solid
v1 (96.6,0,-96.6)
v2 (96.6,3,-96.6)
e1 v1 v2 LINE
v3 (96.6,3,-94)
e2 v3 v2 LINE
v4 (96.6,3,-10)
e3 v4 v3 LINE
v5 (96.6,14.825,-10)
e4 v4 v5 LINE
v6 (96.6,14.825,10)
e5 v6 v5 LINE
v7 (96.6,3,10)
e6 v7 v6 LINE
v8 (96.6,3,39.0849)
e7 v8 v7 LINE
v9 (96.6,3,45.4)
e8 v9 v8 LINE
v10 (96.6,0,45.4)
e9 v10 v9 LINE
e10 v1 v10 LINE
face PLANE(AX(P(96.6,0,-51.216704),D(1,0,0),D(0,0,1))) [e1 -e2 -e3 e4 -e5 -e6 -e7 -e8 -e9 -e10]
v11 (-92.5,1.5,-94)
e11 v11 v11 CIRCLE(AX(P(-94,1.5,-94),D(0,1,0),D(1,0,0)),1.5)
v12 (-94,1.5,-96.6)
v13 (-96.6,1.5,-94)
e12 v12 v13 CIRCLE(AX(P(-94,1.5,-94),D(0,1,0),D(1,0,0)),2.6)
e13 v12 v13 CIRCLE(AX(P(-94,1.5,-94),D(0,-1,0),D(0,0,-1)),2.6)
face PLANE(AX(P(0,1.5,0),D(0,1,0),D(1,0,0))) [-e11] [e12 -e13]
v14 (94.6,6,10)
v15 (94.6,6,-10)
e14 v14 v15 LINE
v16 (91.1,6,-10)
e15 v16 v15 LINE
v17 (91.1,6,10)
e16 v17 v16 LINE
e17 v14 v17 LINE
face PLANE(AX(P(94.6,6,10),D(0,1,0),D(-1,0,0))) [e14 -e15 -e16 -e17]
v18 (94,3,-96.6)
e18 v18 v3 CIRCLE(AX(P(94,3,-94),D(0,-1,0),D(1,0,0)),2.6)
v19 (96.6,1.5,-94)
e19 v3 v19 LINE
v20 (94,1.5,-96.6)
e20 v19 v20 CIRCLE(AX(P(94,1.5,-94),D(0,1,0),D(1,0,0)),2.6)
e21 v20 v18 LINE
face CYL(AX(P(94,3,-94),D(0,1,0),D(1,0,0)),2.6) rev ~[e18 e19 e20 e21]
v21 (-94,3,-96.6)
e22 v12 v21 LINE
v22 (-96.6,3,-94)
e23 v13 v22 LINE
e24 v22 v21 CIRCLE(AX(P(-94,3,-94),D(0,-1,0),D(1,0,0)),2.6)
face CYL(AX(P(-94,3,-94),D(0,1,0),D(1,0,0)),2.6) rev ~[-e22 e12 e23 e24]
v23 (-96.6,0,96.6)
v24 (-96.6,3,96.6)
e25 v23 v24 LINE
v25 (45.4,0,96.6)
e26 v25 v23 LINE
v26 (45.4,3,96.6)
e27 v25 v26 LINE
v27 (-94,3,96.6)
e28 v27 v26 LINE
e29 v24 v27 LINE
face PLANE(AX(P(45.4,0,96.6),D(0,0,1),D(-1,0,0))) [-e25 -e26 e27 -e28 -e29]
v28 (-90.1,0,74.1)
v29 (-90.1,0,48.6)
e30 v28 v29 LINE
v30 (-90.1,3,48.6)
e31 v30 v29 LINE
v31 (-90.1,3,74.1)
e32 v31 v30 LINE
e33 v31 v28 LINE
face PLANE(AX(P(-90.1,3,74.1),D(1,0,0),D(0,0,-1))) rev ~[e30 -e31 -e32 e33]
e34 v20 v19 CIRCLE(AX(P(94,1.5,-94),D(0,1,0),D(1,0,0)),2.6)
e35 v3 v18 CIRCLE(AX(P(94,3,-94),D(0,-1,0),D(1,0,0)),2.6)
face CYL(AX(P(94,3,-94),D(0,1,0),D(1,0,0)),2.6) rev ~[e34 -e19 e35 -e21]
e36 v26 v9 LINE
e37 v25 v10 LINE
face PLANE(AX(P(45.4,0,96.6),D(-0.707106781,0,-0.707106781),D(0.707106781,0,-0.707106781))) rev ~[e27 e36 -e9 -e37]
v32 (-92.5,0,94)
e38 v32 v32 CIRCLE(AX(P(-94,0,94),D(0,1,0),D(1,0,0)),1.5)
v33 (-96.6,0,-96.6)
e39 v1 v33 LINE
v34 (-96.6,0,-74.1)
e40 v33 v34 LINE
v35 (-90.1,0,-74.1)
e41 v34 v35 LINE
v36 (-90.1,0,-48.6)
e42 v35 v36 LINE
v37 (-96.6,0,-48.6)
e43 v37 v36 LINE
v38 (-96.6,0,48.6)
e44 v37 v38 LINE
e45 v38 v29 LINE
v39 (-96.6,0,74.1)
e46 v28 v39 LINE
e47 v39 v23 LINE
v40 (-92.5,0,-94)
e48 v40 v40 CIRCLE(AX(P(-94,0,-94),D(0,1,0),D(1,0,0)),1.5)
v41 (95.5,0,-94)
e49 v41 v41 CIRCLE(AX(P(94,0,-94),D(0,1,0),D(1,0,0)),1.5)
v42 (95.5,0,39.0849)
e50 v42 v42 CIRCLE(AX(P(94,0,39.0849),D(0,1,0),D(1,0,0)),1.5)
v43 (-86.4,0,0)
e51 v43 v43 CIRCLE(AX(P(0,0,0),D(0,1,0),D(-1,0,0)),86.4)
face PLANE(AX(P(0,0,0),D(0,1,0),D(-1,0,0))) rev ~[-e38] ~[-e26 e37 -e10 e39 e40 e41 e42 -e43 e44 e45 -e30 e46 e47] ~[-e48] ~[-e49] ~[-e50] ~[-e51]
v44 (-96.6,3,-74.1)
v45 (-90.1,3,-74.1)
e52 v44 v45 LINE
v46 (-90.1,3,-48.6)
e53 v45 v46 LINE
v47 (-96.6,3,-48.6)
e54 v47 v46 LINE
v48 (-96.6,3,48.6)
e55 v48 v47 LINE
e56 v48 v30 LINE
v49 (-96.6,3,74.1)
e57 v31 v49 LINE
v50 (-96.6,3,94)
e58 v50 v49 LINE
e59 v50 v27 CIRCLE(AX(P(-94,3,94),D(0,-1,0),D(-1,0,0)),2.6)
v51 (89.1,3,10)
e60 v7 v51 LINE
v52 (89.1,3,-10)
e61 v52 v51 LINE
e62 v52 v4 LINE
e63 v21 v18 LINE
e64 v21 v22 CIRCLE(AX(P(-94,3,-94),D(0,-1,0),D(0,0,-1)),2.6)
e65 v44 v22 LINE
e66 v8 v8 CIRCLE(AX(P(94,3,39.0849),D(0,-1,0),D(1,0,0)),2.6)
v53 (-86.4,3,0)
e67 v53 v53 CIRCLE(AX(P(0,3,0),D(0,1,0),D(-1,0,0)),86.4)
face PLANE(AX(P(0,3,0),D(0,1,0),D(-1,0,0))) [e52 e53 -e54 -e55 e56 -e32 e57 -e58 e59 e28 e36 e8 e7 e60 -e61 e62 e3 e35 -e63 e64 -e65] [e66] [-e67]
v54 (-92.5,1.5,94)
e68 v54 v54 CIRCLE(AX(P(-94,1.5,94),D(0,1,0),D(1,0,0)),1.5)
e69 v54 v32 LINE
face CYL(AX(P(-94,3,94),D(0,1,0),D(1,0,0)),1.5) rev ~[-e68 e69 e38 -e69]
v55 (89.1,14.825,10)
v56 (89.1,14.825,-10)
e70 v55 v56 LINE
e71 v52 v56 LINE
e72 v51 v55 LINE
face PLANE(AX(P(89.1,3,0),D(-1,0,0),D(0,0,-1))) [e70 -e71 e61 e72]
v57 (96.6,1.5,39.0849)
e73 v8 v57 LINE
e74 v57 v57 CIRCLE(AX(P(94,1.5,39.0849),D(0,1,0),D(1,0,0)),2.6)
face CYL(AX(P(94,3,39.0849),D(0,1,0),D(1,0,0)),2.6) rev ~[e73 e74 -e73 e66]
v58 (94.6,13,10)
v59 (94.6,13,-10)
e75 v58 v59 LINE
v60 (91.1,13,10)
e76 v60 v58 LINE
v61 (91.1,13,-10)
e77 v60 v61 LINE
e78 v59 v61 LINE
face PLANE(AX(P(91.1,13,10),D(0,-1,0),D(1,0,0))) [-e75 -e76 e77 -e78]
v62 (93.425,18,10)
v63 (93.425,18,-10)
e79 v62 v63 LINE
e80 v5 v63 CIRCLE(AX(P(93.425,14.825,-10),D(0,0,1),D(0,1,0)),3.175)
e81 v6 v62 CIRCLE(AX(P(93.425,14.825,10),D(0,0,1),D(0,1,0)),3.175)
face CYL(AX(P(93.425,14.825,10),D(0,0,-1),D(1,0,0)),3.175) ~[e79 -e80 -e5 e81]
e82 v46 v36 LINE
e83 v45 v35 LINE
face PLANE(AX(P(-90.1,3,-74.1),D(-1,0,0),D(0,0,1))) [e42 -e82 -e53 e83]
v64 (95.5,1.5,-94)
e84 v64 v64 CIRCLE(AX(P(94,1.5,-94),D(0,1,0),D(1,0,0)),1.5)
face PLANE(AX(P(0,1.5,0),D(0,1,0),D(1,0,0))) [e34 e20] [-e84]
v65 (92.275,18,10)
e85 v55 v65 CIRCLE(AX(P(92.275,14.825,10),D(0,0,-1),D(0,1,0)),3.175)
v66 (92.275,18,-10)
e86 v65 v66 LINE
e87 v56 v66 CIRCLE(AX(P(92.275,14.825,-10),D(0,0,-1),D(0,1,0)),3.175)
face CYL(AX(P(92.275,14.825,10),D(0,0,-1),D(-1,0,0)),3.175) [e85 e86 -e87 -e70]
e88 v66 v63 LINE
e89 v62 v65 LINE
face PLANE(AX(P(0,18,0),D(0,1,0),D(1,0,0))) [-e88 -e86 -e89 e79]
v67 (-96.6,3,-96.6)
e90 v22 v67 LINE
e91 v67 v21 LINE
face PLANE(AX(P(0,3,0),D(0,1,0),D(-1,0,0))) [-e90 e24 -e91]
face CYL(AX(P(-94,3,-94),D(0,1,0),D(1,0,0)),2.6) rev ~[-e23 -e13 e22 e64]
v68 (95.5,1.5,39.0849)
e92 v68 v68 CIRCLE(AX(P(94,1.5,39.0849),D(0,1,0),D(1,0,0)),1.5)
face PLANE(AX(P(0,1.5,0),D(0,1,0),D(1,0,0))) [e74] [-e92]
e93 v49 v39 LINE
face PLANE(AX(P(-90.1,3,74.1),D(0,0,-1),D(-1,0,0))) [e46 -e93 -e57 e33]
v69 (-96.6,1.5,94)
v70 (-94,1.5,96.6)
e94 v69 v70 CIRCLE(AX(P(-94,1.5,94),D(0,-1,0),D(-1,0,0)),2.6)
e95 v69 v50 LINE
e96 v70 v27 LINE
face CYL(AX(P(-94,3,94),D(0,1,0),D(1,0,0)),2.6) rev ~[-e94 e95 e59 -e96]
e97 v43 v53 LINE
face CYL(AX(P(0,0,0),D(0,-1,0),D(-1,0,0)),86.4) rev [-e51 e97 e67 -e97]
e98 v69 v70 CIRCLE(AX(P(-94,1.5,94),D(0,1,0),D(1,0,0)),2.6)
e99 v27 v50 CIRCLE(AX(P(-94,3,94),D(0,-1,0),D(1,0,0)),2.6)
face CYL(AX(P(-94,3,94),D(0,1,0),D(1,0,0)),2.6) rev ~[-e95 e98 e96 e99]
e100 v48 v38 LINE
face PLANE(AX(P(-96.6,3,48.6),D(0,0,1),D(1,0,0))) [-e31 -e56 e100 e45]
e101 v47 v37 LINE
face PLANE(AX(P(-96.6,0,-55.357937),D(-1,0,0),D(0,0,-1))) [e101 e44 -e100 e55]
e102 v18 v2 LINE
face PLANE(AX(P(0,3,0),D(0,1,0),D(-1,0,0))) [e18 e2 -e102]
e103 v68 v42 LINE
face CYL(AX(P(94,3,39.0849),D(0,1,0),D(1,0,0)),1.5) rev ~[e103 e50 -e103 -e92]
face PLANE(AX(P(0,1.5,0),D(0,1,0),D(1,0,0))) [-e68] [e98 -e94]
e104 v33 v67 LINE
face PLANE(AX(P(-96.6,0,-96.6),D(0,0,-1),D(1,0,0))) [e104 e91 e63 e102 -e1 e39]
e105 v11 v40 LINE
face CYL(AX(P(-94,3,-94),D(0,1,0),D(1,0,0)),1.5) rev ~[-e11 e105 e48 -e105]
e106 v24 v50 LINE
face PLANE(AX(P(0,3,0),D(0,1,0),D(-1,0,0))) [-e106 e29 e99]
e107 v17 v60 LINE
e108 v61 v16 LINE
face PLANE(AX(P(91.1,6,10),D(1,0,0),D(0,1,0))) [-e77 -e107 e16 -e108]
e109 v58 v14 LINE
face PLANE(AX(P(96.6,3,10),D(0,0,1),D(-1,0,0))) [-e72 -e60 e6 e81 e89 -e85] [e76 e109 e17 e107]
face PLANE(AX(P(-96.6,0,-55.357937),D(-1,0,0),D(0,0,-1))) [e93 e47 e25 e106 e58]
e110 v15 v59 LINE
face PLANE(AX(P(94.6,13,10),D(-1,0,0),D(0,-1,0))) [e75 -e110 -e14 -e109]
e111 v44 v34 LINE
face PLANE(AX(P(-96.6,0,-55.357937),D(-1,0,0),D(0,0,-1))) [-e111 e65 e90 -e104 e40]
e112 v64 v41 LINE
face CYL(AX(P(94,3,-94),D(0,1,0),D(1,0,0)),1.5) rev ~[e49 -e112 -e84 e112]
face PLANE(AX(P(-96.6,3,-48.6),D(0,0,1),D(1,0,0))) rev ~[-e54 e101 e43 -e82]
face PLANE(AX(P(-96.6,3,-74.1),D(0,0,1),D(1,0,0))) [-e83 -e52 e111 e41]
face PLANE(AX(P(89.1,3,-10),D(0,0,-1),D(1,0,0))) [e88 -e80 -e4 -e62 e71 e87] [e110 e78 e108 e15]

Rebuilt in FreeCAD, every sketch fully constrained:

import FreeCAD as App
import Part
import Sketcher
from FreeCAD import Vector


def edges_at(feature, points):
    """Names of the edges that pass closest to the given points."""
    edges = feature.Shape.Edges
    near = lambda p: min(range(len(edges)), key=lambda i: edges[i].distToShape(Part.Vertex(*p))[0])
    return sorted({f"Edge{near(p) + 1}" for p in points})


def add_polygon(sketch, points):
    """Adds a closed chain of lines whose ends are joined by coincident constraints."""
    first, n = sketch.GeometryCount, len(points)
    for a, b in zip(points, points[1:] + points[:1]):
        sketch.addGeometry(Part.LineSegment(App.Vector(*a, 0), App.Vector(*b, 0)), False)
    for i in range(n):
        sketch.addConstraint(Sketcher.Constraint("Coincident", first + i, 2, first + (i + 1) % n, 1))

doc = App.newDocument("Part")
body = doc.addObject("PartDesign::Body", "Body")

# Sketch on XZ plane
sketch1 = body.newObject("Sketcher::SketchObject", "Sketch")
sketch1.AttachmentSupport = (doc.getObject("XZ_Plane"), [""])
sketch1.MapMode = "FlatFace"
add_polygon(sketch1, [(-97, -97), (-97, 97), (45, 97), (97, 45), (97, -97)])  # lines 0-4
sketch1.addGeometry(Part.Circle(Vector(0, 0, 0), Vector(0, 0, 1), 86), False)  # 5
sketch1.addConstraint(Sketcher.Constraint("Vertical", 0))
sketch1.addConstraint(Sketcher.Constraint("Horizontal", 1))
sketch1.addConstraint(Sketcher.Constraint("Vertical", 3))
sketch1.addConstraint(Sketcher.Constraint("Horizontal", 4))
sketch1.addConstraint(Sketcher.Constraint("Coincident", 5, 3, -1, 1))
sketch1.addConstraint(Sketcher.Constraint("Symmetric", 0, 2, 3, 2, -1, 1))
sketch1.addConstraint(Sketcher.Constraint("Equal", 4, 0))
sketch1.addConstraint(Sketcher.Constraint("Equal", 1, 3))
sketch1.addConstraint(Sketcher.Constraint("Diameter", 5, 172.8))
sketch1.addConstraint(Sketcher.Constraint("DistanceX", 1, 1, 1, 2, 142.0))
sketch1.addConstraint(Sketcher.Constraint("DistanceX", 4, 2, 4, 1, 193.2))
pad1 = body.newObject("PartDesign::Pad", "Pad")
pad1.Profile = sketch1
pad1.Length = 3
pad1.Reversed = True

# Sketch on XZ plane
sketch2 = body.newObject("Sketcher::SketchObject", "Sketch001")
sketch2.AttachmentSupport = (doc.getObject("XZ_Plane"), [""])
sketch2.MapMode = "FlatFace"
sketch2.AttachmentOffset = App.Placement(Vector(0, 0, -3), App.Rotation())
add_polygon(sketch2, [(89, -10), (89, 10), (97, 10), (97, -10)])  # lines 0-3
sketch2.addConstraint(Sketcher.Constraint("Vertical", 0))
sketch2.addConstraint(Sketcher.Constraint("Horizontal", 1))
sketch2.addConstraint(Sketcher.Constraint("Vertical", 2))
sketch2.addConstraint(Sketcher.Constraint("Horizontal", 3))
sketch2.addConstraint(Sketcher.Constraint("DistanceX", 1, 1, 1, 2, 7.5))
sketch2.addConstraint(Sketcher.Constraint("DistanceY", -1, 1, 0, 2, 10.0))
sketch2.addConstraint(Sketcher.Constraint("DistanceY", 2, 2, -1, 1, 10.0))
sketch2.addConstraint(Sketcher.Constraint("DistanceX", -1, 1, 0, 2, 89.1))
pad2 = body.newObject("PartDesign::Pad", "Pad001")
pad2.Profile = sketch2
pad2.Length = 15
pad2.Reversed = True

# Sketch on XY plane
sketch3 = body.newObject("Sketcher::SketchObject", "Sketch002")
sketch3.AttachmentSupport = (doc.getObject("XY_Plane"), [""])
sketch3.MapMode = "FlatFace"
sketch3.AttachmentOffset = App.Placement(Vector(0, 0, 10), App.Rotation())
add_polygon(sketch3, [(94.6, 13), (91.1, 13), (91.1, 6), (94.6, 6)])  # lines 0-3
sketch3.addConstraint(Sketcher.Constraint("Horizontal", 0))
sketch3.addConstraint(Sketcher.Constraint("Vertical", 1))
sketch3.addConstraint(Sketcher.Constraint("Horizontal", 2))
sketch3.addConstraint(Sketcher.Constraint("Vertical", 3))
sketch3.addConstraint(Sketcher.Constraint("DistanceY", 1, 2, 1, 1, 7.0))
sketch3.addConstraint(Sketcher.Constraint("DistanceX", 0, 2, 0, 1, 3.5))
sketch3.addConstraint(Sketcher.Constraint("DistanceY", -1, 1, 0, 2, 13.0))
sketch3.addConstraint(Sketcher.Constraint("DistanceX", -1, 1, 0, 2, 91.1))
pocket1 = body.newObject("PartDesign::Pocket", "Pocket")
pocket1.Profile = sketch3
pocket1.Type = "ThroughAll"
doc.recompute()

fillet = body.newObject("PartDesign::Fillet", "Fillet")
fillet.Base = (pocket1, edges_at(pocket1, [(96.6, 18, 0), (89.1, 18, 0)]))
fillet.Radius = 3.175

# Sketch on XZ plane
sketch4 = body.newObject("Sketcher::SketchObject", "Sketch003")
sketch4.AttachmentSupport = (doc.getObject("XZ_Plane"), [""])
sketch4.MapMode = "FlatFace"
sketch4.AttachmentOffset = App.Placement(Vector(0, 0, -3), App.Rotation())
add_polygon(sketch4, [(-90, -74), (-97, -74), (-97, -49), (-90, -49)])  # lines 0-3
add_polygon(sketch4, [(-90, 49), (-97, 49), (-97, 74), (-90, 74)])  # lines 4-7
sketch4.addConstraint(Sketcher.Constraint("Horizontal", 0))
sketch4.addConstraint(Sketcher.Constraint("Vertical", 1))
sketch4.addConstraint(Sketcher.Constraint("Horizontal", 2))
sketch4.addConstraint(Sketcher.Constraint("Vertical", 3))
sketch4.addConstraint(Sketcher.Constraint("Horizontal", 4))
sketch4.addConstraint(Sketcher.Constraint("Vertical", 5))
sketch4.addConstraint(Sketcher.Constraint("Horizontal", 6))
sketch4.addConstraint(Sketcher.Constraint("Vertical", 7))
sketch4.addConstraint(Sketcher.Constraint("Symmetric", 1, 2, 4, 2, -1))
sketch4.addConstraint(Sketcher.Constraint("Symmetric", 3, 2, 6, 2, -1))
sketch4.addConstraint(Sketcher.Constraint("DistanceX", 0, 2, 0, 1, 6.5))
sketch4.addConstraint(Sketcher.Constraint("DistanceY", 1, 1, 1, 2, 25.5))
sketch4.addConstraint(Sketcher.Constraint("DistanceX", 0, 2, -1, 1, 96.6))
sketch4.addConstraint(Sketcher.Constraint("DistanceY", 0, 2, -1, 1, 74.1))
pocket2 = body.newObject("PartDesign::Pocket", "Pocket001")
pocket2.Profile = sketch4
pocket2.Type = "ThroughAll"
pocket2.Reversed = True

# Sketch on XZ plane
sketch5 = body.newObject("Sketcher::SketchObject", "Sketch004")
sketch5.AttachmentSupport = (doc.getObject("XZ_Plane"), [""])
sketch5.MapMode = "FlatFace"
sketch5.AttachmentOffset = App.Placement(Vector(0, 0, -3), App.Rotation())
sketch5.addGeometry(Part.Circle(Vector(-94, -94, 0), Vector(0, 0, 1), 1.5), False)
sketch5.addGeometry(Part.Circle(Vector(94, -94, 0), Vector(0, 0, 1), 1.5), False)
sketch5.addGeometry(Part.Circle(Vector(-94, 94, 0), Vector(0, 0, 1), 1.5), False)
sketch5.addGeometry(Part.Circle(Vector(94, 39.1, 0), Vector(0, 0, 1), 1.5), False)
sketch5.addConstraint(Sketcher.Constraint("Equal", 0, 1))
sketch5.addConstraint(Sketcher.Constraint("Equal", 1, 2))
sketch5.addConstraint(Sketcher.Constraint("Equal", 2, 3))
sketch5.addConstraint(Sketcher.Constraint("Symmetric", 1, 3, 2, 3, -1, 1))
sketch5.addConstraint(Sketcher.Constraint("Symmetric", 0, 3, 1, 3, -2))
sketch5.addConstraint(Sketcher.Constraint("Vertical", 1, 3, 3, 3))
sketch5.addConstraint(Sketcher.Constraint("Diameter", 0, 3.0))
sketch5.addConstraint(Sketcher.Constraint("DistanceX", 0, 3, -1, 1, 94.0))
sketch5.addConstraint(Sketcher.Constraint("DistanceY", 0, 3, -1, 1, 94.0))
sketch5.addConstraint(Sketcher.Constraint("DistanceY", -1, 1, 3, 3, 39.085))
pocket3 = body.newObject("PartDesign::Pocket", "Pocket002")
pocket3.Profile = sketch5
pocket3.Length = 10
pocket3.Reversed = True

# Sketch on XZ plane
sketch6 = body.newObject("Sketcher::SketchObject", "Sketch005")
sketch6.AttachmentSupport = (doc.getObject("XZ_Plane"), [""])
sketch6.MapMode = "FlatFace"
sketch6.AttachmentOffset = App.Placement(Vector(0, 0, -3), App.Rotation())
sketch6.addGeometry(Part.Circle(Vector(-94, -94, 0), Vector(0, 0, 1), 2.6), False)
sketch6.addGeometry(Part.Circle(Vector(94, -94, 0), Vector(0, 0, 1), 2.6), False)
sketch6.addGeometry(Part.Circle(Vector(-94, 94, 0), Vector(0, 0, 1), 2.6), False)
sketch6.addGeometry(Part.Circle(Vector(94, 39.1, 0), Vector(0, 0, 1), 2.6), False)
sketch6.addConstraint(Sketcher.Constraint("Equal", 0, 1))
sketch6.addConstraint(Sketcher.Constraint("Equal", 1, 2))
sketch6.addConstraint(Sketcher.Constraint("Equal", 2, 3))
sketch6.addConstraint(Sketcher.Constraint("Symmetric", 1, 3, 2, 3, -1, 1))
sketch6.addConstraint(Sketcher.Constraint("Symmetric", 0, 3, 1, 3, -2))
sketch6.addConstraint(Sketcher.Constraint("Vertical", 1, 3, 3, 3))
sketch6.addConstraint(Sketcher.Constraint("Diameter", 0, 5.2))
sketch6.addConstraint(Sketcher.Constraint("DistanceX", 0, 3, -1, 1, 94.0))
sketch6.addConstraint(Sketcher.Constraint("DistanceY", 0, 3, -1, 1, 94.0))
sketch6.addConstraint(Sketcher.Constraint("DistanceY", -1, 1, 3, 3, 39.085))
pocket4 = body.newObject("PartDesign::Pocket", "Pocket003")
pocket4.Profile = sketch6
pocket4.Length = 1.5
pocket4.Reversed = True

doc.recompute()
